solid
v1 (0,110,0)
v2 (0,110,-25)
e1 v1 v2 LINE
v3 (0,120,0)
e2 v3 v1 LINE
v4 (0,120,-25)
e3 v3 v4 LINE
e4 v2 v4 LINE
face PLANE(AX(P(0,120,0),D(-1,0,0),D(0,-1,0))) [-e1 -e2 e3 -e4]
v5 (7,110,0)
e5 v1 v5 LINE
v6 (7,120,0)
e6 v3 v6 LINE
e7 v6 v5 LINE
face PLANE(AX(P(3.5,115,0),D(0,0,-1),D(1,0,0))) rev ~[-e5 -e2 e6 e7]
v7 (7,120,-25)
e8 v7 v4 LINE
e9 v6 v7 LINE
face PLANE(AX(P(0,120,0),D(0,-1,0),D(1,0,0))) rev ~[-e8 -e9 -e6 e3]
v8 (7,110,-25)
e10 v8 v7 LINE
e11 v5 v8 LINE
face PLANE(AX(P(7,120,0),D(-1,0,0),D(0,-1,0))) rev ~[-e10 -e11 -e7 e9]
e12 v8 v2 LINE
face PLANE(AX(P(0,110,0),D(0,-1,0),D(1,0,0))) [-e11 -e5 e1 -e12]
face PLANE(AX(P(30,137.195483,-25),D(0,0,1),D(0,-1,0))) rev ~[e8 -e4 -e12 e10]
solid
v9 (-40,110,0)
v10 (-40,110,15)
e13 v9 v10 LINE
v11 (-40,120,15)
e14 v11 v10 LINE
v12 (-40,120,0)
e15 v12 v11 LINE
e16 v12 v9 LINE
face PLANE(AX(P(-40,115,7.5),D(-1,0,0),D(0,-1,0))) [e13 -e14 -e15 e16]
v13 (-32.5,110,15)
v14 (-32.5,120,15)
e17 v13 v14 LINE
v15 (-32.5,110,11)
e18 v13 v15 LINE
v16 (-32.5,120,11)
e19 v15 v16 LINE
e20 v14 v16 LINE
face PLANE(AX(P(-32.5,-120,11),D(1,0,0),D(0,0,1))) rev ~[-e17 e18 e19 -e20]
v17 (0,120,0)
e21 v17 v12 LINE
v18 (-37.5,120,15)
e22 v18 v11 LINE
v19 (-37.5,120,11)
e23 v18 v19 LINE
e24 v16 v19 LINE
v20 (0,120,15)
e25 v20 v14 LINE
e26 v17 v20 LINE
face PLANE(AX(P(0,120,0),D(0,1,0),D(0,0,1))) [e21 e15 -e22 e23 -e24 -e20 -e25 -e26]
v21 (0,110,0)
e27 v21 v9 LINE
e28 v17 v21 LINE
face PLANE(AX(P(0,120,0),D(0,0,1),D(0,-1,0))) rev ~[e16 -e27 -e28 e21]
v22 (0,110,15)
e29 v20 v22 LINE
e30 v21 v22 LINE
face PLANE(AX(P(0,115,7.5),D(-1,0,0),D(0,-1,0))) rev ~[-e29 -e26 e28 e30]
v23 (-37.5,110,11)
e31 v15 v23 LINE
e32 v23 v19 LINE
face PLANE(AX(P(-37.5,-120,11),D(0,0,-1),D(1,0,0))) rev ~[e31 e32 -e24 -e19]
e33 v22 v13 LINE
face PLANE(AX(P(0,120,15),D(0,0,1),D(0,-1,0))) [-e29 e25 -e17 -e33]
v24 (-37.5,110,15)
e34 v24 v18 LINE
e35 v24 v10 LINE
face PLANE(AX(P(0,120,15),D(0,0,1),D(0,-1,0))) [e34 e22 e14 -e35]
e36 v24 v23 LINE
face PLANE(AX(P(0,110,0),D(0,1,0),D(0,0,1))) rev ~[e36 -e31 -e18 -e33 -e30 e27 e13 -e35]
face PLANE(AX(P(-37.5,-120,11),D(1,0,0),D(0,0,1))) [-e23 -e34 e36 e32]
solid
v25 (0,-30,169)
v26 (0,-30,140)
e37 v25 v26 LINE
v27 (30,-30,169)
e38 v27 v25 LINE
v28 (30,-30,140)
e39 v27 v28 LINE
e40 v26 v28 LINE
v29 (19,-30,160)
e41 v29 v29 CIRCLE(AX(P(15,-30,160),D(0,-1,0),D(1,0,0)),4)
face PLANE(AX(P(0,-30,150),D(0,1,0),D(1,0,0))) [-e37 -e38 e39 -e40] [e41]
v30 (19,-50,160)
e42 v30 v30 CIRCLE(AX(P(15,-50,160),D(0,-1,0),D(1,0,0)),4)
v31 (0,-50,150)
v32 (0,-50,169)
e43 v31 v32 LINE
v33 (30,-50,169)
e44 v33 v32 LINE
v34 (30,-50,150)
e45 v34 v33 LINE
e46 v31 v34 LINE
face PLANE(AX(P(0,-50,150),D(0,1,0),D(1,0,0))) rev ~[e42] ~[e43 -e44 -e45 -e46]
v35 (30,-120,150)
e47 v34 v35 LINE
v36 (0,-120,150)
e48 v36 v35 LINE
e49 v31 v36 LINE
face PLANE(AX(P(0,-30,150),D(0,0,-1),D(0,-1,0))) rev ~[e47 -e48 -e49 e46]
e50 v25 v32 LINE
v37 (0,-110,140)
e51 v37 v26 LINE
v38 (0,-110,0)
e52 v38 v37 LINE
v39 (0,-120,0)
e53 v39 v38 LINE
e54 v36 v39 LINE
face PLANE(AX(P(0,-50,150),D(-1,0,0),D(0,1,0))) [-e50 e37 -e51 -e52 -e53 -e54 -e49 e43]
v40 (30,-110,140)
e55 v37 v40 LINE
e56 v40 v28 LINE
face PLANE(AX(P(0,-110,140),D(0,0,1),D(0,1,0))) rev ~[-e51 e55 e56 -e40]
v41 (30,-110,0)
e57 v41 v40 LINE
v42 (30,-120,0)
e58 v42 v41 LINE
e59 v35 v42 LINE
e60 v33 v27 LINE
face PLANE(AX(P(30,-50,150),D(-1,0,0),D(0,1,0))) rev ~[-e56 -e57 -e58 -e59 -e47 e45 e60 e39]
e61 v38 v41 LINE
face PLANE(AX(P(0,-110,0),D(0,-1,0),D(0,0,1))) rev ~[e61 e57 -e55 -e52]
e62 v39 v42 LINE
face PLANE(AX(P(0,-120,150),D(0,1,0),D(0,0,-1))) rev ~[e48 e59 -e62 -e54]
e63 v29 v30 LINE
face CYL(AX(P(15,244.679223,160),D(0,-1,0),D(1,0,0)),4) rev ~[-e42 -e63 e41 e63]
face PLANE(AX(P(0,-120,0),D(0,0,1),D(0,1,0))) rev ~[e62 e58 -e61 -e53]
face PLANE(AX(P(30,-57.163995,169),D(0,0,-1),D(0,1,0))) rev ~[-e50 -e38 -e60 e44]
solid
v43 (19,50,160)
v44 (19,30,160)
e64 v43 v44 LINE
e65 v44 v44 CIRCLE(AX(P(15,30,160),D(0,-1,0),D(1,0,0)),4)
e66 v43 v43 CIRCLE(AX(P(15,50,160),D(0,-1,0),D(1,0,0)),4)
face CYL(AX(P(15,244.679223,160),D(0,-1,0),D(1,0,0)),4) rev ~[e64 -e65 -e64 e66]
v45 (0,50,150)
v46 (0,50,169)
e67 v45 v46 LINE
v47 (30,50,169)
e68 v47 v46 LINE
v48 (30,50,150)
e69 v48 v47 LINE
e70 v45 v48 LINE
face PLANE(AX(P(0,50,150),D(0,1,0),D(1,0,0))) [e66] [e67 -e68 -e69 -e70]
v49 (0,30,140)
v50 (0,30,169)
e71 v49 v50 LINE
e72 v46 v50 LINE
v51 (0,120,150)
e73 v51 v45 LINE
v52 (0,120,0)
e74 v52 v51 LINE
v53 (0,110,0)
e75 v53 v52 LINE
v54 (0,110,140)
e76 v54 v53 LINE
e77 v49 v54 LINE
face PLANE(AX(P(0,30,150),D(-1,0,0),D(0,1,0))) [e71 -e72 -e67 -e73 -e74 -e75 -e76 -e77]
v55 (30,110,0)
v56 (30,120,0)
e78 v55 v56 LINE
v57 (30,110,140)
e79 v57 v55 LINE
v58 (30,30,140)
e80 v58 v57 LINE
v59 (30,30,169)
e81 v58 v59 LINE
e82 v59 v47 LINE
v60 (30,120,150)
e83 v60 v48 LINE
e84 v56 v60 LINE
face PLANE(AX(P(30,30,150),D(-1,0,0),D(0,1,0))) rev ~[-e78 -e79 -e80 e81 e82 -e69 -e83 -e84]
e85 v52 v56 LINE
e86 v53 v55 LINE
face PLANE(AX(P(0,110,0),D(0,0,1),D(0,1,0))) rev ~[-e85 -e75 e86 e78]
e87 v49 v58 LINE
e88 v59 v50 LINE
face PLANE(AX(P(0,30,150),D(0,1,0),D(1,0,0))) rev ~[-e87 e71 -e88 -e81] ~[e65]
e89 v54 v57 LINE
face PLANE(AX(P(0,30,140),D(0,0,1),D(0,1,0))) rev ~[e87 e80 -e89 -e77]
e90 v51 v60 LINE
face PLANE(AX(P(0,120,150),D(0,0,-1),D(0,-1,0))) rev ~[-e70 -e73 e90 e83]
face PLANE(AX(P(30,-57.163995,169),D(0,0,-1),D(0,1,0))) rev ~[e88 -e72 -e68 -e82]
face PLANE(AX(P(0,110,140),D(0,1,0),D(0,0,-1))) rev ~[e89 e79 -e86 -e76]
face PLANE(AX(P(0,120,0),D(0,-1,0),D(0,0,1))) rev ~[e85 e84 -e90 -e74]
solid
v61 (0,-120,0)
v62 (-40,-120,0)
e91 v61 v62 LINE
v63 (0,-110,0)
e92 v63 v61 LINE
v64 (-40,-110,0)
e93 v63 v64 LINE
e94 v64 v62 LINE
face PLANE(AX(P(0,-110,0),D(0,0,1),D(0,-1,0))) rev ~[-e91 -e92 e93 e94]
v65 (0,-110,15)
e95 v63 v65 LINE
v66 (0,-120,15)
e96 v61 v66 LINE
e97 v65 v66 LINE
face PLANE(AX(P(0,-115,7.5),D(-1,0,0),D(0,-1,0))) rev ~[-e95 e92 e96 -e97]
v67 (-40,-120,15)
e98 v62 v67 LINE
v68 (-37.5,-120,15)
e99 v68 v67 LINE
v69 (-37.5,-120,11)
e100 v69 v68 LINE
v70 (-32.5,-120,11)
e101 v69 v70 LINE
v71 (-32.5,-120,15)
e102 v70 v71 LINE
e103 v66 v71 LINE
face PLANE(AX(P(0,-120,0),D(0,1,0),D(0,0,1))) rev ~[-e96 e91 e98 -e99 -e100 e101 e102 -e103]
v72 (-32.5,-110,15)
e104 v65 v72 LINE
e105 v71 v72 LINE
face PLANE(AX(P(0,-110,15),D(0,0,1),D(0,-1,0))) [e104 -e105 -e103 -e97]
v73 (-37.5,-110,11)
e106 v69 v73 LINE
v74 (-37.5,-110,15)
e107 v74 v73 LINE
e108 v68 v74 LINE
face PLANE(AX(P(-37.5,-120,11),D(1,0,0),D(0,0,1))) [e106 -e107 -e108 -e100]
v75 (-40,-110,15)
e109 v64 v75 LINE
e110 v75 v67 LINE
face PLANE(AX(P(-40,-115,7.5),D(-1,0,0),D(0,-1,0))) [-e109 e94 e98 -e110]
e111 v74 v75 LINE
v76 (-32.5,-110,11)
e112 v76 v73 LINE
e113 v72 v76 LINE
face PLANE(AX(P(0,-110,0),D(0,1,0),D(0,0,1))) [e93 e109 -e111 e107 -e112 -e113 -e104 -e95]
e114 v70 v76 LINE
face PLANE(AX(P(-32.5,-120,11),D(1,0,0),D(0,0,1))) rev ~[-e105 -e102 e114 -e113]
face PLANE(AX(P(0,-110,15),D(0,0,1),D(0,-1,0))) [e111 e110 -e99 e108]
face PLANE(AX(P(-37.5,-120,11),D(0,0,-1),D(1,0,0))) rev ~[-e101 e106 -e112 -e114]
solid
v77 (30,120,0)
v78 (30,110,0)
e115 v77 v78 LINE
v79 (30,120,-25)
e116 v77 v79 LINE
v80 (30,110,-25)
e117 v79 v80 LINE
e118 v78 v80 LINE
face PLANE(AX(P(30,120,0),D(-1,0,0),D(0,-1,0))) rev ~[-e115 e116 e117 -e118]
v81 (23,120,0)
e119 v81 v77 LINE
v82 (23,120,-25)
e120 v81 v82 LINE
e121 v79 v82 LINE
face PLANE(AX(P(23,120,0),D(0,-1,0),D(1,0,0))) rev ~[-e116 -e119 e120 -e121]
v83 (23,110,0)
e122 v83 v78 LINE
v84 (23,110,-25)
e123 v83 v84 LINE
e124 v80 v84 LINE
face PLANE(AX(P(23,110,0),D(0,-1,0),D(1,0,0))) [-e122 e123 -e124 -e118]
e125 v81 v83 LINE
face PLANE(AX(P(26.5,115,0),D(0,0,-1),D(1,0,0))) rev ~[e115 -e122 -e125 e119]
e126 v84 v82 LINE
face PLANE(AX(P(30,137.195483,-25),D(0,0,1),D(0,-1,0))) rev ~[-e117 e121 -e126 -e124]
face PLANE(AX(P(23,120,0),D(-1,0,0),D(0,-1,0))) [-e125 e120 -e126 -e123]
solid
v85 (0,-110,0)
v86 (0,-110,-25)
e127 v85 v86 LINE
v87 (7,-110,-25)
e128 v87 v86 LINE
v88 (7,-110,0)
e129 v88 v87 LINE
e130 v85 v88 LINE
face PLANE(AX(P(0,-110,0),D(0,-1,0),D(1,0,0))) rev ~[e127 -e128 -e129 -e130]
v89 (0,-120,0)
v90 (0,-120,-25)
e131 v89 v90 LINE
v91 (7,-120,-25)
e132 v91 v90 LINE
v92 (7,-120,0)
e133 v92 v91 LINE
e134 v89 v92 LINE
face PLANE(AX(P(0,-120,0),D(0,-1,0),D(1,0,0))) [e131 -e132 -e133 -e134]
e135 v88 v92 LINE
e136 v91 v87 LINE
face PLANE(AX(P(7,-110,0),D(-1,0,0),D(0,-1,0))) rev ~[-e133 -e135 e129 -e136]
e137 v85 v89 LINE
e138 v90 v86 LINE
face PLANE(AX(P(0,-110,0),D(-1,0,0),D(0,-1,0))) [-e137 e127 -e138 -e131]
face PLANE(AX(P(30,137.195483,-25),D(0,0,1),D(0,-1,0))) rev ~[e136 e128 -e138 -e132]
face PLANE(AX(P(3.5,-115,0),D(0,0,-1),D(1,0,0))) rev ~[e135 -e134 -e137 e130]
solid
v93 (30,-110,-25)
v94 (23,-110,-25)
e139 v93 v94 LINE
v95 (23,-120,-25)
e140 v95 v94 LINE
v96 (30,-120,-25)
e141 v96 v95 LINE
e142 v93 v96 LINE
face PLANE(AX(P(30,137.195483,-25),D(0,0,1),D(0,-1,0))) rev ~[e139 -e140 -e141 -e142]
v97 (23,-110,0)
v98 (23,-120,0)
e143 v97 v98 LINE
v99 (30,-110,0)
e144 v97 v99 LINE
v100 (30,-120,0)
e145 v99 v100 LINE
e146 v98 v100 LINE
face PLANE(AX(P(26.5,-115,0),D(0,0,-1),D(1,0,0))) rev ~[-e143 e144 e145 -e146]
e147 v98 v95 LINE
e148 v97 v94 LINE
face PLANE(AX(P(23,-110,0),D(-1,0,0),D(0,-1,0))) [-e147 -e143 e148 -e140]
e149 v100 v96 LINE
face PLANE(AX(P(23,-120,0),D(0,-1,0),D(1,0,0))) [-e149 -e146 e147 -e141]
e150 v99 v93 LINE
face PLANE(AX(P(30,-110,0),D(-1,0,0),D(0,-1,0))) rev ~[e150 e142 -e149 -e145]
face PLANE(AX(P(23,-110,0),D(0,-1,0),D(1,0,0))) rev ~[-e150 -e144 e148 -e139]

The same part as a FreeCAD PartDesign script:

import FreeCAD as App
import Part
import Sketcher

V = App.Vector

doc = App.newDocument("Part")
body = doc.addObject("PartDesign::Body", "Body")

# Sketch on YZ plane
sketch1 = body.newObject("Sketcher::SketchObject", "Sketch")
sketch1.AttachmentSupport = (doc.getObject("YZ_Plane"), [""])
sketch1.MapMode = "FlatFace"
sketch1.addGeometry(Part.LineSegment(V(-120, 150, 0), V(-120, 0, 0)), False)
sketch1.addGeometry(Part.LineSegment(V(-120, 0, 0), V(-110, 0, 0)), False)
sketch1.addGeometry(Part.LineSegment(V(-110, 0, 0), V(-110, 140, 0)), False)
sketch1.addGeometry(Part.LineSegment(V(-110, 140, 0), V(-30, 140, 0)), False)
sketch1.addGeometry(Part.LineSegment(V(-30, 140, 0), V(-30, 150, 0)), False)
sketch1.addGeometry(Part.LineSegment(V(-30, 150, 0), V(-120, 150, 0)), False)
sketch1.addConstraint(Sketcher.Constraint("Coincident", 0, 2, 1, 1))
sketch1.addConstraint(Sketcher.Constraint("Coincident", 1, 2, 2, 1))
sketch1.addConstraint(Sketcher.Constraint("Coincident", 2, 2, 3, 1))
sketch1.addConstraint(Sketcher.Constraint("Coincident", 3, 2, 4, 1))
sketch1.addConstraint(Sketcher.Constraint("Coincident", 4, 2, 5, 1))
sketch1.addConstraint(Sketcher.Constraint("Coincident", 5, 2, 0, 1))
sketch1.addConstraint(Sketcher.Constraint("Vertical", 0))
sketch1.addConstraint(Sketcher.Constraint("Horizontal", 1))
sketch1.addConstraint(Sketcher.Constraint("Vertical", 2))
sketch1.addConstraint(Sketcher.Constraint("Horizontal", 3))
sketch1.addConstraint(Sketcher.Constraint("Vertical", 4))
sketch1.addConstraint(Sketcher.Constraint("Horizontal", 5))
sketch1.addConstraint(Sketcher.Constraint("PointOnObject", 0, 2, -1))
sketch1.addConstraint(Sketcher.Constraint("Equal", 1, 4))
sketch1.addConstraint(Sketcher.Constraint("DistanceX", 1, 1, 1, 2, 10.0))
sketch1.addConstraint(Sketcher.Constraint("DistanceX", 3, 1, 3, 2, 80.0))
sketch1.addConstraint(Sketcher.Constraint("DistanceY", 0, 2, 0, 1, 150.0))
sketch1.addConstraint(Sketcher.Constraint("DistanceX", 0, 2, -1, 1, 120.0))
pad1 = body.newObject("PartDesign::Pad", "Pad")
pad1.Profile = sketch1
pad1.Length = 30

# Sketch on XY plane
sketch2 = body.newObject("Sketcher::SketchObject", "Sketch001")
sketch2.AttachmentSupport = (doc.getObject("XY_Plane"), [""])
sketch2.MapMode = "FlatFace"
sketch2.AttachmentOffset = App.Placement(V(0, 0, 150), App.Rotation())
sketch2.addGeometry(Part.LineSegment(V(0, -30, 0), V(0, -50, 0)), False)
sketch2.addGeometry(Part.LineSegment(V(0, -50, 0), V(30, -50, 0)), False)
sketch2.addGeometry(Part.LineSegment(V(30, -50, 0), V(30, -30, 0)), False)
sketch2.addGeometry(Part.LineSegment(V(30, -30, 0), V(0, -30, 0)), False)
sketch2.addConstraint(Sketcher.Constraint("Coincident", 0, 2, 1, 1))
sketch2.addConstraint(Sketcher.Constraint("Coincident", 1, 2, 2, 1))
sketch2.addConstraint(Sketcher.Constraint("Coincident", 2, 2, 3, 1))
sketch2.addConstraint(Sketcher.Constraint("Coincident", 3, 2, 0, 1))
sketch2.addConstraint(Sketcher.Constraint("Vertical", 0))
sketch2.addConstraint(Sketcher.Constraint("Horizontal", 1))
sketch2.addConstraint(Sketcher.Constraint("Vertical", 2))
sketch2.addConstraint(Sketcher.Constraint("Horizontal", 3))
sketch2.addConstraint(Sketcher.Constraint("PointOnObject", 0, 2, -2))
sketch2.addConstraint(Sketcher.Constraint("DistanceX", 1, 1, 1, 2, 30.0))
sketch2.addConstraint(Sketcher.Constraint("DistanceY", 0, 2, 0, 1, 20.0))
sketch2.addConstraint(Sketcher.Constraint("DistanceY", 0, 2, -1, 1, 50.0))
pad2 = body.newObject("PartDesign::Pad", "Pad001")
pad2.Profile = sketch2
pad2.Length = 20

# Sketch on XZ plane
sketch3 = body.newObject("Sketcher::SketchObject", "Sketch002")
sketch3.AttachmentSupport = (doc.getObject("XZ_Plane"), [""])
sketch3.MapMode = "FlatFace"
sketch3.AttachmentOffset = App.Placement(V(0, 0, -50), App.Rotation())
sketch3.addGeometry(Part.Circle(V(15, 160, 0), V(0, 0, 1), 4), False)
sketch3.addConstraint(Sketcher.Constraint("Diameter", 0, 8.0))
sketch3.addConstraint(Sketcher.Constraint("DistanceX", -1, 1, 0, 3, 15.0))
sketch3.addConstraint(Sketcher.Constraint("DistanceY", -1, 1, 0, 3, 160.0))
doc.recompute()
hole = body.newObject("PartDesign::Hole", "Hole")
hole.Profile = sketch3
hole.ThreadType = "None"
hole.Diameter = 8
hole.DepthType = "ThroughAll"
hole.Reversed = True

# Sketch on XZ plane
sketch4 = body.newObject("Sketcher::SketchObject", "Sketch003")
sketch4.AttachmentSupport = (doc.getObject("XZ_Plane"), [""])
sketch4.MapMode = "FlatFace"
sketch4.AttachmentOffset = App.Placement(V(0, 0, -120), App.Rotation())
sketch4.addGeometry(Part.LineSegment(V(-32.5, 15, 0), V(-32.5, 11, 0)), False)
sketch4.addGeometry(Part.LineSegment(V(-32.5, 11, 0), V(-37.5, 11, 0)), False)
sketch4.addGeometry(Part.LineSegment(V(-37.5, 11, 0), V(-37.5, 15, 0)), False)
sketch4.addGeometry(Part.LineSegment(V(-37.5, 15, 0), V(-32.5, 15, 0)), False)
sketch4.addConstraint(Sketcher.Constraint("Coincident", 0, 2, 1, 1))
sketch4.addConstraint(Sketcher.Constraint("Coincident", 1, 2, 2, 1))
sketch4.addConstraint(Sketcher.Constraint("Coincident", 2, 2, 3, 1))
sketch4.addConstraint(Sketcher.Constraint("Coincident", 3, 2, 0, 1))
sketch4.addConstraint(Sketcher.Constraint("Vertical", 0))
sketch4.addConstraint(Sketcher.Constraint("Horizontal", 1))
sketch4.addConstraint(Sketcher.Constraint("Vertical", 2))
sketch4.addConstraint(Sketcher.Constraint("Horizontal", 3))
sketch4.addConstraint(Sketcher.Constraint("DistanceX", 1, 2, 1, 1, 5.0))
sketch4.addConstraint(Sketcher.Constraint("DistanceY", 0, 2, 0, 1, 4.0))
sketch4.addConstraint(Sketcher.Constraint("DistanceY", -1, 1, 0, 2, 11.0))
sketch4.addConstraint(Sketcher.Constraint("DistanceX", 0, 2, -1, 1, 32.5))
pocket1 = body.newObject("PartDesign::Pocket", "Pocket")
pocket1.Profile = sketch4
pocket1.Type = "ThroughAll"
pocket1.Reversed = True
body2 = doc.addObject("PartDesign::Body", "Body001")

# Sketch on YZ plane
sketch5 = body2.newObject("Sketcher::SketchObject", "Sketch004")
sketch5.AttachmentSupport = (doc.getObject("YZ_Plane001"), [""])
sketch5.MapMode = "FlatFace"
sketch5.addGeometry(Part.LineSegment(V(110, 140, 0), V(110, 0, 0)), False)
sketch5.addGeometry(Part.LineSegment(V(110, 0, 0), V(120, 0, 0)), False)
sketch5.addGeometry(Part.LineSegment(V(120, 0, 0), V(120, 150, 0)), False)
sketch5.addGeometry(Part.LineSegment(V(120, 150, 0), V(30, 150, 0)), False)
sketch5.addGeometry(Part.LineSegment(V(30, 150, 0), V(30, 140, 0)), False)
sketch5.addGeometry(Part.LineSegment(V(30, 140, 0), V(110, 140, 0)), False)
sketch5.addConstraint(Sketcher.Constraint("Coincident", 0, 2, 1, 1))
sketch5.addConstraint(Sketcher.Constraint("Coincident", 1, 2, 2, 1))
sketch5.addConstraint(Sketcher.Constraint("Coincident", 2, 2, 3, 1))
sketch5.addConstraint(Sketcher.Constraint("Coincident", 3, 2, 4, 1))
sketch5.addConstraint(Sketcher.Constraint("Coincident", 4, 2, 5, 1))
sketch5.addConstraint(Sketcher.Constraint("Coincident", 5, 2, 0, 1))
sketch5.addConstraint(Sketcher.Constraint("Vertical", 0))
sketch5.addConstraint(Sketcher.Constraint("Horizontal", 1))
sketch5.addConstraint(Sketcher.Constraint("Vertical", 2))
sketch5.addConstraint(Sketcher.Constraint("Horizontal", 3))
sketch5.addConstraint(Sketcher.Constraint("Vertical", 4))
sketch5.addConstraint(Sketcher.Constraint("Horizontal", 5))
sketch5.addConstraint(Sketcher.Constraint("PointOnObject", 0, 2, -1))
sketch5.addConstraint(Sketcher.Constraint("Equal", 1, 4))
sketch5.addConstraint(Sketcher.Constraint("DistanceX", 1, 1, 1, 2, 10.0))
sketch5.addConstraint(Sketcher.Constraint("DistanceX", 3, 2, 3, 1, 90.0))
sketch5.addConstraint(Sketcher.Constraint("DistanceY", 0, 2, 0, 1, 140.0))
sketch5.addConstraint(Sketcher.Constraint("DistanceX", -1, 1, 0, 2, 110.0))
pad3 = body2.newObject("PartDesign::Pad", "Pad002")
pad3.Profile = sketch5
pad3.Length = 30

# Sketch on XY plane
sketch6 = body2.newObject("Sketcher::SketchObject", "Sketch005")
sketch6.AttachmentSupport = (doc.getObject("XY_Plane001"), [""])
sketch6.MapMode = "FlatFace"
sketch6.AttachmentOffset = App.Placement(V(0, 0, 150), App.Rotation())
sketch6.addGeometry(Part.LineSegment(V(0, 50, 0), V(0, 30, 0)), False)
sketch6.addGeometry(Part.LineSegment(V(0, 30, 0), V(30, 30, 0)), False)
sketch6.addGeometry(Part.LineSegment(V(30, 30, 0), V(30, 50, 0)), False)
sketch6.addGeometry(Part.LineSegment(V(30, 50, 0), V(0, 50, 0)), False)
sketch6.addConstraint(Sketcher.Constraint("Coincident", 0, 2, 1, 1))
sketch6.addConstraint(Sketcher.Constraint("Coincident", 1, 2, 2, 1))
sketch6.addConstraint(Sketcher.Constraint("Coincident", 2, 2, 3, 1))
sketch6.addConstraint(Sketcher.Constraint("Coincident", 3, 2, 0, 1))
sketch6.addConstraint(Sketcher.Constraint("Vertical", 0))
sketch6.addConstraint(Sketcher.Constraint("Horizontal", 1))
sketch6.addConstraint(Sketcher.Constraint("Vertical", 2))
sketch6.addConstraint(Sketcher.Constraint("Horizontal", 3))
sketch6.addConstraint(Sketcher.Constraint("PointOnObject", 0, 2, -2))
sketch6.addConstraint(Sketcher.Constraint("DistanceX", 1, 1, 1, 2, 30.0))
sketch6.addConstraint(Sketcher.Constraint("DistanceY", 0, 2, 0, 1, 20.0))
sketch6.addConstraint(Sketcher.Constraint("DistanceY", -1, 1, 0, 2, 30.0))
pad4 = body2.newObject("PartDesign::Pad", "Pad003")
pad4.Profile = sketch6
pad4.Length = 20

# Sketch on XZ plane
sketch7 = body2.newObject("Sketcher::SketchObject", "Sketch006")
sketch7.AttachmentSupport = (doc.getObject("XZ_Plane001"), [""])
sketch7.MapMode = "FlatFace"
sketch7.AttachmentOffset = App.Placement(V(0, 0, -50), App.Rotation())
sketch7.addGeometry(Part.Circle(V(15, 160, 0), V(0, 0, 1), 4), False)
sketch7.addConstraint(Sketcher.Constraint("Diameter", 0, 8.0))
sketch7.addConstraint(Sketcher.Constraint("DistanceX", -1, 1, 0, 3, 15.0))
sketch7.addConstraint(Sketcher.Constraint("DistanceY", -1, 1, 0, 3, 160.0))
doc.recompute()
hole2 = body2.newObject("PartDesign::Hole", "Hole001")
hole2.Profile = sketch7
hole2.ThreadType = "None"
hole2.Diameter = 8
hole2.DepthType = "ThroughAll"
hole2.Reversed = True
body3 = doc.addObject("PartDesign::Body", "Body002")

# Sketch on XY plane
sketch8 = body3.newObject("Sketcher::SketchObject", "Sketch007")
sketch8.AttachmentSupport = (doc.getObject("XY_Plane002"), [""])
sketch8.MapMode = "FlatFace"
sketch8.addGeometry(Part.LineSegment(V(23, 110, 0), V(23, 120, 0)), False)
sketch8.addGeometry(Part.LineSegment(V(23, 120, 0), V(30, 120, 0)), False)
sketch8.addGeometry(Part.LineSegment(V(30, 120, 0), V(30, 110, 0)), False)
sketch8.addGeometry(Part.LineSegment(V(30, 110, 0), V(23, 110, 0)), False)
sketch8.addConstraint(Sketcher.Constraint("Coincident", 0, 2, 1, 1))
sketch8.addConstraint(Sketcher.Constraint("Coincident", 1, 2, 2, 1))
sketch8.addConstraint(Sketcher.Constraint("Coincident", 2, 2, 3, 1))
sketch8.addConstraint(Sketcher.Constraint("Coincident", 3, 2, 0, 1))
sketch8.addConstraint(Sketcher.Constraint("Vertical", 0))
sketch8.addConstraint(Sketcher.Constraint("Horizontal", 1))
sketch8.addConstraint(Sketcher.Constraint("Vertical", 2))
sketch8.addConstraint(Sketcher.Constraint("Horizontal", 3))
sketch8.addConstraint(Sketcher.Constraint("DistanceX", 1, 1, 1, 2, 7.0))
sketch8.addConstraint(Sketcher.Constraint("DistanceY", 0, 1, 0, 2, 10.0))
sketch8.addConstraint(Sketcher.Constraint("DistanceX", -1, 1, 0, 2, 23.0))
sketch8.addConstraint(Sketcher.Constraint("DistanceY", -1, 1, 0, 2, 120.0))
pad5 = body3.newObject("PartDesign::Pad", "Pad004")
pad5.Profile = sketch8
pad5.Length = 30
pad5.Reversed = True
body4 = doc.addObject("PartDesign::Body", "Body003")

# Sketch on XY plane
sketch9 = body4.newObject("Sketcher::SketchObject", "Sketch008")
sketch9.AttachmentSupport = (doc.getObject("XY_Plane003"), [""])
sketch9.MapMode = "FlatFace"
sketch9.addGeometry(Part.LineSegment(V(0, 110, 0), V(0, 120, 0)), False)
sketch9.addGeometry(Part.LineSegment(V(0, 120, 0), V(7, 120, 0)), False)
sketch9.addGeometry(Part.LineSegment(V(7, 120, 0), V(7, 110, 0)), False)
sketch9.addGeometry(Part.LineSegment(V(7, 110, 0), V(0, 110, 0)), False)
sketch9.addConstraint(Sketcher.Constraint("Coincident", 0, 2, 1, 1))
sketch9.addConstraint(Sketcher.Constraint("Coincident", 1, 2, 2, 1))
sketch9.addConstraint(Sketcher.Constraint("Coincident", 2, 2, 3, 1))
sketch9.addConstraint(Sketcher.Constraint("Coincident", 3, 2, 0, 1))
sketch9.addConstraint(Sketcher.Constraint("Vertical", 0))
sketch9.addConstraint(Sketcher.Constraint("Horizontal", 1))
sketch9.addConstraint(Sketcher.Constraint("Vertical", 2))
sketch9.addConstraint(Sketcher.Constraint("Horizontal", 3))
sketch9.addConstraint(Sketcher.Constraint("PointOnObject", 0, 2, -2))
sketch9.addConstraint(Sketcher.Constraint("DistanceX", 1, 1, 1, 2, 7.0))
sketch9.addConstraint(Sketcher.Constraint("DistanceY", 0, 1, 0, 2, 10.0))
sketch9.addConstraint(Sketcher.Constraint("DistanceY", -1, 1, 0, 2, 120.0))
pad6 = body4.newObject("PartDesign::Pad", "Pad005")
pad6.Profile = sketch9
pad6.Length = 30
pad6.Reversed = True
body5 = doc.addObject("PartDesign::Body", "Body004")

# Sketch on XY plane
sketch10 = body5.newObject("Sketcher::SketchObject", "Sketch009")
sketch10.AttachmentSupport = (doc.getObject("XY_Plane004"), [""])
sketch10.MapMode = "FlatFace"
sketch10.addGeometry(Part.LineSegment(V(23, -120, 0), V(23, -110, 0)), False)
sketch10.addGeometry(Part.LineSegment(V(23, -110, 0), V(30, -110, 0)), False)
sketch10.addGeometry(Part.LineSegment(V(30, -110, 0), V(30, -120, 0)), False)
sketch10.addGeometry(Part.LineSegment(V(30, -120, 0), V(23, -120, 0)), False)
sketch10.addConstraint(Sketcher.Constraint("Coincident", 0, 2, 1, 1))
sketch10.addConstraint(Sketcher.Constraint("Coincident", 1, 2, 2, 1))
sketch10.addConstraint(Sketcher.Constraint("Coincident", 2, 2, 3, 1))
sketch10.addConstraint(Sketcher.Constraint("Coincident", 3, 2, 0, 1))
sketch10.addConstraint(Sketcher.Constraint("Vertical", 0))
sketch10.addConstraint(Sketcher.Constraint("Horizontal", 1))
sketch10.addConstraint(Sketcher.Constraint("Vertical", 2))
sketch10.addConstraint(Sketcher.Constraint("Horizontal", 3))
sketch10.addConstraint(Sketcher.Constraint("DistanceX", 1, 1, 1, 2, 7.0))
sketch10.addConstraint(Sketcher.Constraint("DistanceY", 0, 1, 0, 2, 10.0))
sketch10.addConstraint(Sketcher.Constraint("DistanceX", -1, 1, 0, 2, 23.0))
sketch10.addConstraint(Sketcher.Constraint("DistanceY", 0, 2, -1, 1, 110.0))
pad7 = body5.newObject("PartDesign::Pad", "Pad006")
pad7.Profile = sketch10
pad7.Length = 30
pad7.Reversed = True
body6 = doc.addObject("PartDesign::Body", "Body005")

# Sketch on XY plane
sketch11 = body6.newObject("Sketcher::SketchObject", "Sketch010")
sketch11.AttachmentSupport = (doc.getObject("XY_Plane005"), [""])
sketch11.MapMode = "FlatFace"
sketch11.addGeometry(Part.LineSegment(V(0, -120, 0), V(0, -110, 0)), False)
sketch11.addGeometry(Part.LineSegment(V(0, -110, 0), V(7, -110, 0)), False)
sketch11.addGeometry(Part.LineSegment(V(7, -110, 0), V(7, -120, 0)), False)
sketch11.addGeometry(Part.LineSegment(V(7, -120, 0), V(0, -120, 0)), False)
sketch11.addConstraint(Sketcher.Constraint("Coincident", 0, 2, 1, 1))
sketch11.addConstraint(Sketcher.Constraint("Coincident", 1, 2, 2, 1))
sketch11.addConstraint(Sketcher.Constraint("Coincident", 2, 2, 3, 1))
sketch11.addConstraint(Sketcher.Constraint("Coincident", 3, 2, 0, 1))
sketch11.addConstraint(Sketcher.Constraint("Vertical", 0))
sketch11.addConstraint(Sketcher.Constraint("Horizontal", 1))
sketch11.addConstraint(Sketcher.Constraint("Vertical", 2))
sketch11.addConstraint(Sketcher.Constraint("Horizontal", 3))
sketch11.addConstraint(Sketcher.Constraint("PointOnObject", 0, 2, -2))
sketch11.addConstraint(Sketcher.Constraint("DistanceX", 1, 1, 1, 2, 7.0))
sketch11.addConstraint(Sketcher.Constraint("DistanceY", 0, 1, 0, 2, 10.0))
sketch11.addConstraint(Sketcher.Constraint("DistanceY", 0, 2, -1, 1, 110.0))
pad8 = body6.newObject("PartDesign::Pad", "Pad007")
pad8.Profile = sketch11
pad8.Length = 30
pad8.Reversed = True
body7 = doc.addObject("PartDesign::Body", "Body006")

# Sketch on YZ plane
sketch12 = body7.newObject("Sketcher::SketchObject", "Sketch011")
sketch12.AttachmentSupport = (doc.getObject("YZ_Plane006"), [""])
sketch12.MapMode = "FlatFace"
sketch12.addGeometry(Part.LineSegment(V(120, 15, 0), V(120, 0, 0)), False)
sketch12.addGeometry(Part.LineSegment(V(120, 0, 0), V(110, 0, 0)), False)
sketch12.addGeometry(Part.LineSegment(V(110, 0, 0), V(110, 15, 0)), False)
sketch12.addGeometry(Part.LineSegment(V(110, 15, 0), V(120, 15, 0)), False)
sketch12.addConstraint(Sketcher.Constraint("Coincident", 0, 2, 1, 1))
sketch12.addConstraint(Sketcher.Constraint("Coincident", 1, 2, 2, 1))
sketch12.addConstraint(Sketcher.Constraint("Coincident", 2, 2, 3, 1))
sketch12.addConstraint(Sketcher.Constraint("Coincident", 3, 2, 0, 1))
sketch12.addConstraint(Sketcher.Constraint("Vertical", 0))
sketch12.addConstraint(Sketcher.Constraint("Horizontal", 1))
sketch12.addConstraint(Sketcher.Constraint("Vertical", 2))
sketch12.addConstraint(Sketcher.Constraint("Horizontal", 3))
sketch12.addConstraint(Sketcher.Constraint("PointOnObject", 0, 2, -1))
sketch12.addConstraint(Sketcher.Constraint("DistanceX", 1, 2, 1, 1, 10.0))
sketch12.addConstraint(Sketcher.Constraint("DistanceY", 0, 2, 0, 1, 15.0))
sketch12.addConstraint(Sketcher.Constraint("DistanceX", -1, 1, 0, 2, 120.0))
pad9 = body7.newObject("PartDesign::Pad", "Pad008")
pad9.Profile = sketch12
pad9.Length = 40
pad9.Reversed = True
body8 = doc.addObject("PartDesign::Body", "Body007")

# Sketch on YZ plane
sketch13 = body8.newObject("Sketcher::SketchObject", "Sketch012")
sketch13.AttachmentSupport = (doc.getObject("YZ_Plane007"), [""])
sketch13.MapMode = "FlatFace"
sketch13.addGeometry(Part.LineSegment(V(-110, 15, 0), V(-110, 0, 0)), False)
sketch13.addGeometry(Part.LineSegment(V(-110, 0, 0), V(-120, 0, 0)), False)
sketch13.addGeometry(Part.LineSegment(V(-120, 0, 0), V(-120, 15, 0)), False)
sketch13.addGeometry(Part.LineSegment(V(-120, 15, 0), V(-110, 15, 0)), False)
sketch13.addConstraint(Sketcher.Constraint("Coincident", 0, 2, 1, 1))
sketch13.addConstraint(Sketcher.Constraint("Coincident", 1, 2, 2, 1))
sketch13.addConstraint(Sketcher.Constraint("Coincident", 2, 2, 3, 1))
sketch13.addConstraint(Sketcher.Constraint("Coincident", 3, 2, 0, 1))
sketch13.addConstraint(Sketcher.Constraint("Vertical", 0))
sketch13.addConstraint(Sketcher.Constraint("Horizontal", 1))
sketch13.addConstraint(Sketcher.Constraint("Vertical", 2))
sketch13.addConstraint(Sketcher.Constraint("Horizontal", 3))
sketch13.addConstraint(Sketcher.Constraint("PointOnObject", 0, 2, -1))
sketch13.addConstraint(Sketcher.Constraint("DistanceX", 1, 2, 1, 1, 10.0))
sketch13.addConstraint(Sketcher.Constraint("DistanceY", 0, 2, 0, 1, 15.0))
sketch13.addConstraint(Sketcher.Constraint("DistanceX", 0, 2, -1, 1, 110.0))
pad10 = body8.newObject("PartDesign::Pad", "Pad009")
pad10.Profile = sketch13
pad10.Length = 40
pad10.Reversed = True
body9 = doc.addObject("PartDesign::Body", "Body008")

# Sketch on XZ plane
sketch14 = body9.newObject("Sketcher::SketchObject", "Sketch013")
sketch14.AttachmentSupport = (doc.getObject("XZ_Plane008"), [""])
sketch14.MapMode = "FlatFace"
sketch14.AttachmentOffset = App.Placement(V(0, 0, 120), App.Rotation())
sketch14.addGeometry(Part.LineSegment(V(-37.5, 15, 0), V(-37.5, 11, 0)), False)
sketch14.addGeometry(Part.LineSegment(V(-37.5, 11, 0), V(-32.5, 11, 0)), False)
sketch14.addGeometry(Part.LineSegment(V(-32.5, 11, 0), V(-32.5, 15, 0)), False)
sketch14.addGeometry(Part.LineSegment(V(-32.5, 15, 0), V(-37.5, 15, 0)), False)
sketch14.addConstraint(Sketcher.Constraint("Coincident", 0, 2, 1, 1))
sketch14.addConstraint(Sketcher.Constraint("Coincident", 1, 2, 2, 1))
sketch14.addConstraint(Sketcher.Constraint("Coincident", 2, 2, 3, 1))
sketch14.addConstraint(Sketcher.Constraint("Coincident", 3, 2, 0, 1))
sketch14.addConstraint(Sketcher.Constraint("Vertical", 0))
sketch14.addConstraint(Sketcher.Constraint("Horizontal", 1))
sketch14.addConstraint(Sketcher.Constraint("Vertical", 2))
sketch14.addConstraint(Sketcher.Constraint("Horizontal", 3))
sketch14.addConstraint(Sketcher.Constraint("DistanceX", 1, 1, 1, 2, 5.0))
sketch14.addConstraint(Sketcher.Constraint("DistanceY", 0, 2, 0, 1, 4.0))
sketch14.addConstraint(Sketcher.Constraint("DistanceY", -1, 1, 0, 2, 11.0))
sketch14.addConstraint(Sketcher.Constraint("DistanceX", 0, 2, -1, 1, 37.5))
pad11 = body9.newObject("PartDesign::Pad", "Pad010")
pad11.Profile = sketch14
pad11.Length = 240.001
pad11.Reversed = True
doc.recompute()

body10 = doc.addObject("PartDesign::Body", "Body009")
body10.BaseFeature = body9
boolean = body7.newObject("PartDesign::Boolean", "Boolean")
boolean.Type = "Cut"
boolean.addObjects([body10])
doc.recompute()

boolean2 = body8.newObject("PartDesign::Boolean", "Boolean001")
boolean2.Type = "Cut"
boolean2.addObjects([body9])
body11 = doc.addObject("PartDesign::Body", "Body010")
body11.AllowCompound = True

# Sketch on YZ plane
sketch15 = body11.newObject("Sketcher::SketchObject", "Sketch014")
sketch15.AttachmentSupport = (doc.getObject("YZ_Plane010"), [""])
sketch15.MapMode = "FlatFace"
sketch15.AttachmentOffset = App.Placement(V(0, 0, 30), App.Rotation())
sketch15.addGeometry(Part.LineSegment(V(-57, 169, 0), V(58, 169, 0)), False)
sketch15.addGeometry(Part.LineSegment(V(58, 169, 0), V(58, 174, 0)), False)
sketch15.addGeometry(Part.LineSegment(V(58, 174, 0), V(-57, 174, 0)), False)
sketch15.addGeometry(Part.LineSegment(V(-57, 174, 0), V(-57, 169, 0)), False)
sketch15.addGeometry(Part.LineSegment(V(137, -25, 0), V(-132, -25, 0)), False)
sketch15.addGeometry(Part.LineSegment(V(-132, -25, 0), V(-132, -34, 0)), False)
sketch15.addGeometry(Part.LineSegment(V(-132, -34, 0), V(137, -34, 0)), False)
sketch15.addGeometry(Part.LineSegment(V(137, -34, 0), V(137, -25, 0)), False)
sketch15.addConstraint(Sketcher.Constraint("Coincident", 0, 2, 1, 1))
sketch15.addConstraint(Sketcher.Constraint("Coincident", 1, 2, 2, 1))
sketch15.addConstraint(Sketcher.Constraint("Coincident", 2, 2, 3, 1))
sketch15.addConstraint(Sketcher.Constraint("Coincident", 3, 2, 0, 1))
sketch15.addConstraint(Sketcher.Constraint("Coincident", 4, 2, 5, 1))
sketch15.addConstraint(Sketcher.Constraint("Coincident", 5, 2, 6, 1))
sketch15.addConstraint(Sketcher.Constraint("Coincident", 6, 2, 7, 1))
sketch15.addConstraint(Sketcher.Constraint("Coincident", 7, 2, 4, 1))
sketch15.addConstraint(Sketcher.Constraint("Horizontal", 0))
sketch15.addConstraint(Sketcher.Constraint("Vertical", 1))
sketch15.addConstraint(Sketcher.Constraint("Horizontal", 2))
sketch15.addConstraint(Sketcher.Constraint("Vertical", 3))
sketch15.addConstraint(Sketcher.Constraint("Horizontal", 4))
sketch15.addConstraint(Sketcher.Constraint("Vertical", 5))
sketch15.addConstraint(Sketcher.Constraint("Horizontal", 6))
sketch15.addConstraint(Sketcher.Constraint("Vertical", 7))
sketch15.addConstraint(Sketcher.Constraint("DistanceY", -1, 1, 0, 2, 169.0))
sketch15.addConstraint(Sketcher.Constraint("DistanceY", 4, 2, -1, 1, 25.0))
sketch15.addConstraint(Sketcher.Constraint("DistanceX", 0, 1, 0, 2, 114.787165))
sketch15.addConstraint(Sketcher.Constraint("DistanceX", 4, 2, 4, 1, 269.010127))
sketch15.addConstraint(Sketcher.Constraint("DistanceY", 1, 1, 1, 2, 5.488187))
sketch15.addConstraint(Sketcher.Constraint("DistanceY", 5, 2, 5, 1, 9.267336))
sketch15.addConstraint(Sketcher.Constraint("DistanceX", -1, 1, 0, 2, 57.62317))
sketch15.addConstraint(Sketcher.Constraint("DistanceX", 4, 2, 3, 2, 74.650649))
pad12 = body11.newObject("PartDesign::Pad", "Pad011")
pad12.Profile = sketch15
pad12.Length = 69
pad12.Reversed = True
doc.recompute()

body12 = doc.addObject("PartDesign::Body", "Body011")
body12.BaseFeature = body11
boolean3 = body.newObject("PartDesign::Boolean", "Boolean002")
boolean3.Type = "Cut"
boolean3.addObjects([body12])
doc.recompute()

body13 = doc.addObject("PartDesign::Body", "Body012")
body13.BaseFeature = body11
boolean4 = body2.newObject("PartDesign::Boolean", "Boolean003")
boolean4.Type = "Cut"
boolean4.addObjects([body13])
doc.recompute()

body14 = doc.addObject("PartDesign::Body", "Body013")
body14.BaseFeature = body11
boolean5 = body3.newObject("PartDesign::Boolean", "Boolean004")
boolean5.Type = "Cut"
boolean5.addObjects([body14])
doc.recompute()

body15 = doc.addObject("PartDesign::Body", "Body014")
body15.BaseFeature = body11
boolean6 = body4.newObject("PartDesign::Boolean", "Boolean005")
boolean6.Type = "Cut"
boolean6.addObjects([body15])
doc.recompute()

body16 = doc.addObject("PartDesign::Body", "Body015")
body16.BaseFeature = body11
boolean7 = body5.newObject("PartDesign::Boolean", "Boolean006")
boolean7.Type = "Cut"
boolean7.addObjects([body16])
doc.recompute()

boolean8 = body6.newObject("PartDesign::Boolean", "Boolean007")
boolean8.Type = "Cut"
boolean8.addObjects([body11])

doc.recompute()
